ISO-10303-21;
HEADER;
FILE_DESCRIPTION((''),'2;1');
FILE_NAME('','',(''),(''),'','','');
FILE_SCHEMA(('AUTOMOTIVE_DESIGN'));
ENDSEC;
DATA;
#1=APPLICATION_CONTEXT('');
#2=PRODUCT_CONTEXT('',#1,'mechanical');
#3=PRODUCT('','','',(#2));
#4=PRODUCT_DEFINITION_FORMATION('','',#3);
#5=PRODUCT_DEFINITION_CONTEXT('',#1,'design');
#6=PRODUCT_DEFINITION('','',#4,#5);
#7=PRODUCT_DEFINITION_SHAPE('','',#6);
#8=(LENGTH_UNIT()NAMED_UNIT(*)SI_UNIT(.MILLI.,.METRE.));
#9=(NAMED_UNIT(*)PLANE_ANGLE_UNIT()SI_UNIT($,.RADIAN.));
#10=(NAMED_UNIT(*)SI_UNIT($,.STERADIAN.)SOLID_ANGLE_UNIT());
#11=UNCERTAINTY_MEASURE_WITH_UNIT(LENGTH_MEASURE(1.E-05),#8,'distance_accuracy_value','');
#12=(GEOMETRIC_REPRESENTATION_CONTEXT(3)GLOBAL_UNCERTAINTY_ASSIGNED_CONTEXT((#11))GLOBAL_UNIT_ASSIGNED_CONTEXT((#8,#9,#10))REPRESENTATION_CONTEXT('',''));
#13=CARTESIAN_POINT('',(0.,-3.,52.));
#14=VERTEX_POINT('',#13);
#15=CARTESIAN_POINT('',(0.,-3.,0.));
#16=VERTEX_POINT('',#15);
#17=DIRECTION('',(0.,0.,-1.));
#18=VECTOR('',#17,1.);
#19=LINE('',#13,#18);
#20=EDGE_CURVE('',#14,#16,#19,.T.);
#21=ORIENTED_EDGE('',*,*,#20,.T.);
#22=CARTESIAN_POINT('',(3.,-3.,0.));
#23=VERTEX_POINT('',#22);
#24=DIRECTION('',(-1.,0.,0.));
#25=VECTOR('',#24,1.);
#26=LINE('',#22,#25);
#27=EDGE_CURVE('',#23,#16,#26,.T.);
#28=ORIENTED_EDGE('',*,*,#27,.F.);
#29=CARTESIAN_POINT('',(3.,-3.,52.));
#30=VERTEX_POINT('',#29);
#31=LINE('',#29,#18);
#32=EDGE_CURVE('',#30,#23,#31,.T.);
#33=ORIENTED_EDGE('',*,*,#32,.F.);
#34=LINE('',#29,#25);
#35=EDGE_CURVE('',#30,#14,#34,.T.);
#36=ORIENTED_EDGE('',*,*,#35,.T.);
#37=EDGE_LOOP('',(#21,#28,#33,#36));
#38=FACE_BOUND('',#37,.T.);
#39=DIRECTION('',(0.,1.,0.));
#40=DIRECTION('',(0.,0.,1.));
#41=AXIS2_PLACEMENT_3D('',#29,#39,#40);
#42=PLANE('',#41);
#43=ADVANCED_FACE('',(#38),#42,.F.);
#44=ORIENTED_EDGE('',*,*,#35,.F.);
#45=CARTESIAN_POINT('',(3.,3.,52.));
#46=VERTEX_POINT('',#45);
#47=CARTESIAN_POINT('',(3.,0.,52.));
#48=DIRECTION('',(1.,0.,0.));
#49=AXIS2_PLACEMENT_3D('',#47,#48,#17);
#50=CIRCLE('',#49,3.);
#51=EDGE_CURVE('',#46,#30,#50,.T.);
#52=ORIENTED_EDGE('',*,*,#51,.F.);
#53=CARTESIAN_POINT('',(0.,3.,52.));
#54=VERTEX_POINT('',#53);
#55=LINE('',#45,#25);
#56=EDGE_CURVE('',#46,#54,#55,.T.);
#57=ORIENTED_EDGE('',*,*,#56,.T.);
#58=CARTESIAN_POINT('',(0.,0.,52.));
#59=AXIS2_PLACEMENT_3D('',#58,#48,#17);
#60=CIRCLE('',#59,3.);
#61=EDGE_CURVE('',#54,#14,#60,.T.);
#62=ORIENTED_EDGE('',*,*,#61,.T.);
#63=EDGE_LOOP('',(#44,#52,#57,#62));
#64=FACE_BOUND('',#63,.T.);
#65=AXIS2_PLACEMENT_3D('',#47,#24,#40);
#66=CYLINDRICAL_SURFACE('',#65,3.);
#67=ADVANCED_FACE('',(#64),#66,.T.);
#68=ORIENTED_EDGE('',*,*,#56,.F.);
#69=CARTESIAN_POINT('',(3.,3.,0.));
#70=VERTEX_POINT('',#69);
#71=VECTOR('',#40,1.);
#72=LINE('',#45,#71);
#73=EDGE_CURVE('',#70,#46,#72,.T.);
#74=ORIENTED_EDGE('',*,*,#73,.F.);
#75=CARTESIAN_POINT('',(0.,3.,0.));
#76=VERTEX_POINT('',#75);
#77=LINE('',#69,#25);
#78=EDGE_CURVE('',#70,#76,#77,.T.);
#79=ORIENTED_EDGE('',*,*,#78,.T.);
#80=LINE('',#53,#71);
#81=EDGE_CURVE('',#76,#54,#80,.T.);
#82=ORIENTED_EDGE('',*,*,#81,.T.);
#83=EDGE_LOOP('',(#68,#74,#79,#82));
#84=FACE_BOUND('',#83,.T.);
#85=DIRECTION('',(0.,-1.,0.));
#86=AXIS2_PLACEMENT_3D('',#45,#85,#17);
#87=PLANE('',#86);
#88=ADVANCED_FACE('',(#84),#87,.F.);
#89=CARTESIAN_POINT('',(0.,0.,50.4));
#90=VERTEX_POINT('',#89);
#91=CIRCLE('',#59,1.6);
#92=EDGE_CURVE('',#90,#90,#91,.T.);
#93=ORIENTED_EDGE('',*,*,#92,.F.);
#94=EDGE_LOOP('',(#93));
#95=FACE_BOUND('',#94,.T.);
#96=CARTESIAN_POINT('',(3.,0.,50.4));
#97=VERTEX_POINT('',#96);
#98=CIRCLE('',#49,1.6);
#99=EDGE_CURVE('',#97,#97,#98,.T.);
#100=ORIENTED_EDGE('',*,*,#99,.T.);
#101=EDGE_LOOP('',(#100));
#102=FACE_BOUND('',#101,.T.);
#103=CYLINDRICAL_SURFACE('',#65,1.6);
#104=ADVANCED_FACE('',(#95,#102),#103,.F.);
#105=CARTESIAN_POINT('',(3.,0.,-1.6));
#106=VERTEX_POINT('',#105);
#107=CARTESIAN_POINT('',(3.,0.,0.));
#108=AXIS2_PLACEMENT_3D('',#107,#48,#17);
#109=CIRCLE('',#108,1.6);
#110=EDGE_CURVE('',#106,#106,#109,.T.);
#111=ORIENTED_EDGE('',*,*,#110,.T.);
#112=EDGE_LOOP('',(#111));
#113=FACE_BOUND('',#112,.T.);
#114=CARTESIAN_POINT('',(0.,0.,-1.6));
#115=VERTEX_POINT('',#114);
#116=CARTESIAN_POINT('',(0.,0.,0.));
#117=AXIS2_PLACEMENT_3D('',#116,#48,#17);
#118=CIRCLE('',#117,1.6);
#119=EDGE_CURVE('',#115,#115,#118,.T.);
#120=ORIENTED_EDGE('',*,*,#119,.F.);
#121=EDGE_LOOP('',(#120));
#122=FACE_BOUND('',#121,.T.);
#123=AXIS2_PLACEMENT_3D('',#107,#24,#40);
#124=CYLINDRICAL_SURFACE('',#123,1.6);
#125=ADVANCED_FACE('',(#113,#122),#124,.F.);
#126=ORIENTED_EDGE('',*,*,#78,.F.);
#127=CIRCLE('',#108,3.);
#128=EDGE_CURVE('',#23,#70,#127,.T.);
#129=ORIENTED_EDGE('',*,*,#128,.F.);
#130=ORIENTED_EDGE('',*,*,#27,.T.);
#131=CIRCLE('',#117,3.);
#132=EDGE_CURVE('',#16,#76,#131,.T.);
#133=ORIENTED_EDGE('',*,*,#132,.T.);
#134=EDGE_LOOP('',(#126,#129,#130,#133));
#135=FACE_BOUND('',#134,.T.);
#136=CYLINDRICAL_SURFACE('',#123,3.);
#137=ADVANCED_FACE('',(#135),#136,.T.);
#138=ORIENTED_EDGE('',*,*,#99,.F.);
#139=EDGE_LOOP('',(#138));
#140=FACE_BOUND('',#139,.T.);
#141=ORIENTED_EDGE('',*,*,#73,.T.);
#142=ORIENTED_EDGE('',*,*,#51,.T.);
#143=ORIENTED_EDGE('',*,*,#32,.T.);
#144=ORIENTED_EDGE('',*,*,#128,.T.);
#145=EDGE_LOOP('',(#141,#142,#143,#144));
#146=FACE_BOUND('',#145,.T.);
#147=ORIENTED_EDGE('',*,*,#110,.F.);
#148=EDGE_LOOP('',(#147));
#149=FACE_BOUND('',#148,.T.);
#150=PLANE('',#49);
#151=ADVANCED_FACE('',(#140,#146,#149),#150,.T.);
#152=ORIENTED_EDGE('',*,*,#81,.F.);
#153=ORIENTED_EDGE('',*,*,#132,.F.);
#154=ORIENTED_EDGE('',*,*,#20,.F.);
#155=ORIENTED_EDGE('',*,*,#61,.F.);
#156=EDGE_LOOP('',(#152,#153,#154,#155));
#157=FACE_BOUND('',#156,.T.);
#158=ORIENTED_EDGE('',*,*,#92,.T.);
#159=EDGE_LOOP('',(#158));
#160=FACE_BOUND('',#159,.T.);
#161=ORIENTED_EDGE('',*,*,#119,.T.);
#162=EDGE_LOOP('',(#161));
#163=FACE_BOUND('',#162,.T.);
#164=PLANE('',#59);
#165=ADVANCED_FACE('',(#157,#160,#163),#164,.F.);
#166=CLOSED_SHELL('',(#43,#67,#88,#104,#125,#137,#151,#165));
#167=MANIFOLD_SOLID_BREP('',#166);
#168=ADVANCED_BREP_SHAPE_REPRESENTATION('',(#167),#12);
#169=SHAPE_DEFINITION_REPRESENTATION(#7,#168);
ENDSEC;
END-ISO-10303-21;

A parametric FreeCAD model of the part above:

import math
import FreeCAD as App
import Part
import Sketcher
Q = App.Units.Quantity

doc = App.newDocument("Part")
params = doc.addObject("Spreadsheet::Sheet", "Params")
for row, (alias, value) in enumerate([
    ("sketch1_radius", "3 mm"),
    ("sketch1_diameter", "3.2 mm"),
    ("sketch1_height", "52 mm"),
    ("pad1_length", "3 mm"),
], start=1):
    params.set(f"A{row}", alias)
    params.set(f"B{row}", "=" + value)
    params.setAlias(f"B{row}", alias)

body = doc.addObject("PartDesign::Body", "Body")

# Sketch on YZ plane
sketch1 = body.newObject("Sketcher::SketchObject", "Sketch")
sketch1.AttachmentSupport = (doc.getObject("YZ_Plane"), [""])
sketch1.MapMode = "FlatFace"
sketch1.addGeometry([
    Part.LineSegment(App.Vector(-3, 52, 0), App.Vector(-3, 0, 0)),  # 0
    Part.ArcOfCircle(Part.Circle(App.Vector(0, 0, 0), App.Vector(0, 0, 1), 3), math.radians(180), math.radians(360)),  # 1
    Part.LineSegment(App.Vector(3, 0, 0), App.Vector(3, 52, 0)),  # 2
    Part.ArcOfCircle(Part.Circle(App.Vector(0, 52, 0), App.Vector(0, 0, 1), 3), math.radians(0), math.radians(180)),  # 3
    Part.Circle(App.Vector(0, 0, 0), App.Vector(0, 0, 1), 1.6),  # 4
    Part.Circle(App.Vector(0, 52, 0), App.Vector(0, 0, 1), 1.6),  # 5
], False)
sketch1.addConstraint([
    Sketcher.Constraint("Tangent", 0, 2, 1, 1),
    Sketcher.Constraint("Tangent", 1, 2, 2, 1),
    Sketcher.Constraint("Tangent", 2, 2, 3, 1),
    Sketcher.Constraint("Tangent", 3, 2, 0, 1),
    Sketcher.Constraint("Vertical", 0),
    Sketcher.Constraint("Vertical", 2),
    Sketcher.Constraint("Coincident", 1, 3, -1, 1),
    Sketcher.Constraint("Coincident", 4, 3, -1, 1),
    Sketcher.Constraint("Coincident", 5, 3, 3, 3),
    Sketcher.Constraint("Equal", 4, 5),
    Sketcher.Constraint("Radius", 1, Q("3 mm")),
    Sketcher.Constraint("Diameter", 4, Q("3.2 mm")),
    Sketcher.Constraint("DistanceY", 0, 2, 0, 1, Q("52 mm")),
])
sketch1.setExpression("Constraints[10]", "Params.sketch1_radius")
sketch1.setExpression("Constraints[11]", "Params.sketch1_diameter")
sketch1.setExpression("Constraints[12]", "Params.sketch1_height")
pad1 = body.newObject("PartDesign::Pad", "Pad")
pad1.Profile = sketch1
pad1.setExpression("Length", "Params.pad1_length")

doc.recompute()
